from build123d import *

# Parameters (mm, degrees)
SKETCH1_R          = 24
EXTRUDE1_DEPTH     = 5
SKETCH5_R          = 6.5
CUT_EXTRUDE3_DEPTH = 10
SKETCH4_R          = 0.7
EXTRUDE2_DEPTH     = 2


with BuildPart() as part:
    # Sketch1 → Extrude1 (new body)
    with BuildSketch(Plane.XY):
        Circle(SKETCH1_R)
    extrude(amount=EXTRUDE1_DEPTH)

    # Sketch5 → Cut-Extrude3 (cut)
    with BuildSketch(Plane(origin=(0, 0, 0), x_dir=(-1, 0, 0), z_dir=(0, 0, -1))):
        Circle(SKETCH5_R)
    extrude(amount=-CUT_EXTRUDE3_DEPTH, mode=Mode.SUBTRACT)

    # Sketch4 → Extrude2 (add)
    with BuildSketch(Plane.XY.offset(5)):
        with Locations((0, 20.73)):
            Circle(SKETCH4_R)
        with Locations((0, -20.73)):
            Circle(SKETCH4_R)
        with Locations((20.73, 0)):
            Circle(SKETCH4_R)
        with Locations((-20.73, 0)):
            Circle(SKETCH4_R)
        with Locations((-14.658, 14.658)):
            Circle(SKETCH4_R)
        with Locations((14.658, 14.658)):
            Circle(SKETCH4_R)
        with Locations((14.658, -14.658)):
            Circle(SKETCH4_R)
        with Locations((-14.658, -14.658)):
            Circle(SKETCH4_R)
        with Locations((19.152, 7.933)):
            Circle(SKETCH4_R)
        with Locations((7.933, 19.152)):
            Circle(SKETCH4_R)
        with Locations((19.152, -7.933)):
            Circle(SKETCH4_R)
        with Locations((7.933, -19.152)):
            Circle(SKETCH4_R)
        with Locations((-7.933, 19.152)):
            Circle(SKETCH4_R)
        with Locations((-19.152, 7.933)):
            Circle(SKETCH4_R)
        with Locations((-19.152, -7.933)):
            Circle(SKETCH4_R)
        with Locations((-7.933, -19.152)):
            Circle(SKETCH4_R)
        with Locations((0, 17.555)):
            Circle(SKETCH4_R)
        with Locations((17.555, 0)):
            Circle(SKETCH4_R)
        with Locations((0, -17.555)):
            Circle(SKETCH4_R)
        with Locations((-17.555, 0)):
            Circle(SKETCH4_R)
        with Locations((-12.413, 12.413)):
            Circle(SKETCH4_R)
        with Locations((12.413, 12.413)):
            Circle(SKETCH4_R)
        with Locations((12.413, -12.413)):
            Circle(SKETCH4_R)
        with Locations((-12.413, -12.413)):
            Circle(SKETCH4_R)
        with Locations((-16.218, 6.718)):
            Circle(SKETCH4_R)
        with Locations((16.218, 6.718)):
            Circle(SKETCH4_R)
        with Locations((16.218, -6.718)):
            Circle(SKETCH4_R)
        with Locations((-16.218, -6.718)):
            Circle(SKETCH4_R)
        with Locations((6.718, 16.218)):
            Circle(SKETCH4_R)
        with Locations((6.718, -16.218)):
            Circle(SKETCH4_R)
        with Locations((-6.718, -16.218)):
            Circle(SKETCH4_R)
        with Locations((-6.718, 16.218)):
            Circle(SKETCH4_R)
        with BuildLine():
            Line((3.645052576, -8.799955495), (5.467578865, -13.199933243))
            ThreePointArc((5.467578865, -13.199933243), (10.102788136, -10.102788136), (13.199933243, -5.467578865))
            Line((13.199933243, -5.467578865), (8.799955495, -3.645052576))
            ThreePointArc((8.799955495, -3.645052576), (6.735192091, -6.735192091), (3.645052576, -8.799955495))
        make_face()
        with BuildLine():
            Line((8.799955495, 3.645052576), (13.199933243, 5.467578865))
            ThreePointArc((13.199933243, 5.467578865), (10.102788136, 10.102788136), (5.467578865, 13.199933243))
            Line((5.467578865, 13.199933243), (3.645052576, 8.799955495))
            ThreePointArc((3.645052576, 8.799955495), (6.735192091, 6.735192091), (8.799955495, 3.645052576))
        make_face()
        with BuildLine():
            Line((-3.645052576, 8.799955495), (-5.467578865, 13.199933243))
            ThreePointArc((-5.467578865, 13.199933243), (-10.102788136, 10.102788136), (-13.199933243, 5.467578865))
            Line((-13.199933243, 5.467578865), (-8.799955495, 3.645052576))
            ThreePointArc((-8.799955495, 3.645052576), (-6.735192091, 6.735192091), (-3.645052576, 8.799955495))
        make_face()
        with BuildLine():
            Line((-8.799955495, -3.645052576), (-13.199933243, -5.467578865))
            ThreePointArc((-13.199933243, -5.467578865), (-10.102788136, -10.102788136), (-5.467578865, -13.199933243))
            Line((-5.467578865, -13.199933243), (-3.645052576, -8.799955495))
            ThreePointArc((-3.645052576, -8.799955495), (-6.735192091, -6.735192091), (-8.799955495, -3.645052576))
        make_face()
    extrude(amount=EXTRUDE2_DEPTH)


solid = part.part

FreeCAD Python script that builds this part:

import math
import FreeCAD as App
import Part
import Sketcher
Q = App.Units.Quantity

doc = App.newDocument("Part")
body = doc.addObject("PartDesign::Body", "Body")

# Sketch on XY plane
sketch1 = body.newObject("Sketcher::SketchObject", "Sketch")
sketch1.AttachmentSupport = (doc.getObject("XY_Plane"), [""])
sketch1.MapMode = "FlatFace"
sketch1.addGeometry(Part.Circle(App.Vector(0, 0, 0), App.Vector(0, 0, 1), 24), False)
sketch1.addConstraint([
    Sketcher.Constraint("Coincident", 0, 3, -1, 1),
    Sketcher.Constraint("Diameter", 0, Q("48 mm")),
])
pad1 = body.newObject("PartDesign::Pad", "Pad")
pad1.Profile = sketch1
pad1.Length = 5

# Sketch on XY plane
sketch2 = body.newObject("Sketcher::SketchObject", "Sketch001")
sketch2.AttachmentSupport = (doc.getObject("XY_Plane"), [""])
sketch2.MapMode = "FlatFace"
sketch2.addGeometry(Part.Circle(App.Vector(0, 0, 0), App.Vector(0, 0, 1), 6), False)
sketch2.addConstraint([
    Sketcher.Constraint("Coincident", 0, 3, -1, 1),
    Sketcher.Constraint("Diameter", 0, Q("13 mm")),
])
pocket1 = body.newObject("PartDesign::Pocket", "Pocket")
pocket1.Profile = sketch2
pocket1.Length = 10
pocket1.Reversed = True

# Sketch on XY plane
sketch3 = body.newObject("Sketcher::SketchObject", "Sketch002")
sketch3.AttachmentSupport = (doc.getObject("XY_Plane"), [""])
sketch3.MapMode = "FlatFace"
sketch3.AttachmentOffset = App.Placement(App.Vector(0, 0, 5), App.Rotation())
sketch3.addGeometry([
    Part.Circle(App.Vector(0, 20.7, 0), App.Vector(0, 0, 1), 0.7),  # 0
    Part.Circle(App.Vector(0, -20.7, 0), App.Vector(0, 0, 1), 0.7),  # 1
    Part.Circle(App.Vector(20.7, 0, 0), App.Vector(0, 0, 1), 0.7),  # 2
    Part.Circle(App.Vector(-20.7, 0, 0), App.Vector(0, 0, 1), 0.7),  # 3
    Part.Circle(App.Vector(-14.7, 14.7, 0), App.Vector(0, 0, 1), 0.7),  # 4
    Part.Circle(App.Vector(14.7, 14.7, 0), App.Vector(0, 0, 1), 0.7),  # 5
    Part.Circle(App.Vector(14.7, -14.7, 0), App.Vector(0, 0, 1), 0.7),  # 6
    Part.Circle(App.Vector(-14.7, -14.7, 0), App.Vector(0, 0, 1), 0.7),  # 7
    Part.Circle(App.Vector(19.2, 7.9, 0), App.Vector(0, 0, 1), 0.7),  # 8
    Part.Circle(App.Vector(7.9, 19.2, 0), App.Vector(0, 0, 1), 0.7),  # 9
    Part.Circle(App.Vector(19.2, -7.9, 0), App.Vector(0, 0, 1), 0.7),  # 10
    Part.Circle(App.Vector(7.9, -19.2, 0), App.Vector(0, 0, 1), 0.7),  # 11
    Part.Circle(App.Vector(-7.9, 19.2, 0), App.Vector(0, 0, 1), 0.7),  # 12
    Part.Circle(App.Vector(-19.2, 7.9, 0), App.Vector(0, 0, 1), 0.7),  # 13
    Part.Circle(App.Vector(-19.2, -7.9, 0), App.Vector(0, 0, 1), 0.7),  # 14
    Part.Circle(App.Vector(-7.9, -19.2, 0), App.Vector(0, 0, 1), 0.7),  # 15
    Part.Circle(App.Vector(0, 17.6, 0), App.Vector(0, 0, 1), 0.7),  # 16
    Part.Circle(App.Vector(17.6, 0, 0), App.Vector(0, 0, 1), 0.7),  # 17
    Part.Circle(App.Vector(0, -17.6, 0), App.Vector(0, 0, 1), 0.7),  # 18
    Part.Circle(App.Vector(-17.6, 0, 0), App.Vector(0, 0, 1), 0.7),  # 19
    Part.Circle(App.Vector(-12.4, 12.4, 0), App.Vector(0, 0, 1), 0.7),  # 20
    Part.Circle(App.Vector(12.4, 12.4, 0), App.Vector(0, 0, 1), 0.7),  # 21
    Part.Circle(App.Vector(12.4, -12.4, 0), App.Vector(0, 0, 1), 0.7),  # 22
    Part.Circle(App.Vector(-12.4, -12.4, 0), App.Vector(0, 0, 1), 0.7),  # 23
    Part.Circle(App.Vector(-16.2, 6.7, 0), App.Vector(0, 0, 1), 0.7),  # 24
    Part.Circle(App.Vector(16.2, 6.7, 0), App.Vector(0, 0, 1), 0.7),  # 25
    Part.Circle(App.Vector(16.2, -6.7, 0), App.Vector(0, 0, 1), 0.7),  # 26
    Part.Circle(App.Vector(-16.2, -6.7, 0), App.Vector(0, 0, 1), 0.7),  # 27
    Part.Circle(App.Vector(6.7, 16.2, 0), App.Vector(0, 0, 1), 0.7),  # 28
    Part.Circle(App.Vector(6.7, -16.2, 0), App.Vector(0, 0, 1), 0.7),  # 29
    Part.Circle(App.Vector(-6.7, -16.2, 0), App.Vector(0, 0, 1), 0.7),  # 30
    Part.Circle(App.Vector(-6.7, 16.2, 0), App.Vector(0, 0, 1), 0.7),  # 31
    Part.LineSegment(App.Vector(3.6, -8.8, 0), App.Vector(5.5, -13.2, 0)),  # 32
    Part.ArcOfCircle(Part.Circle(App.Vector(0, 0, 0), App.Vector(0, 0, 1), 14.3), math.radians(-68), math.radians(-22)),  # 33
    Part.LineSegment(App.Vector(13.2, -5.5, 0), App.Vector(8.8, -3.6, 0)),  # 34
    Part.ArcOfCircle(Part.Circle(App.Vector(0, 0, 0), App.Vector(0, 0, 1), 9.5), math.radians(-68), math.radians(-22)),  # 35
    Part.LineSegment(App.Vector(8.8, 3.6, 0), App.Vector(13.2, 5.5, 0)),  # 36
    Part.ArcOfCircle(Part.Circle(App.Vector(0, 0, 0), App.Vector(0, 0, 1), 14.3), math.radians(22), math.radians(68)),  # 37
    Part.LineSegment(App.Vector(5.5, 13.2, 0), App.Vector(3.6, 8.8, 0)),  # 38
    Part.ArcOfCircle(Part.Circle(App.Vector(0, 0, 0), App.Vector(0, 0, 1), 9.5), math.radians(22), math.radians(68)),  # 39
    Part.LineSegment(App.Vector(-3.6, 8.8, 0), App.Vector(-5.5, 13.2, 0)),  # 40
    Part.ArcOfCircle(Part.Circle(App.Vector(0, 0, 0), App.Vector(0, 0, 1), 14.3), math.radians(112), math.radians(158)),  # 41
    Part.LineSegment(App.Vector(-13.2, 5.5, 0), App.Vector(-8.8, 3.6, 0)),  # 42
    Part.ArcOfCircle(Part.Circle(App.Vector(0, 0, 0), App.Vector(0, 0, 1), 9.5), math.radians(112), math.radians(158)),  # 43
    Part.LineSegment(App.Vector(-8.8, -3.6, 0), App.Vector(-13.2, -5.5, 0)),  # 44
    Part.ArcOfCircle(Part.Circle(App.Vector(0, 0, 0), App.Vector(0, 0, 1), 14.3), math.radians(-158), math.radians(-112)),  # 45
    Part.LineSegment(App.Vector(-5.5, -13.2, 0), App.Vector(-3.6, -8.8, 0)),  # 46
    Part.ArcOfCircle(Part.Circle(App.Vector(0, 0, 0), App.Vector(0, 0, 1), 9.5), math.radians(-158), math.radians(-112)),  # 47
], False)
sketch3.addConstraint([
    Sketcher.Constraint("Coincident", 32, 2, 33, 1),
    Sketcher.Constraint("Coincident", 33, 2, 34, 1),
    Sketcher.Constraint("Coincident", 34, 2, 35, 2),
    Sketcher.Constraint("Coincident", 35, 1, 32, 1),
    Sketcher.Constraint("Coincident", 36, 2, 37, 1),
    Sketcher.Constraint("Coincident", 37, 2, 38, 1),
    Sketcher.Constraint("Coincident", 38, 2, 39, 2),
    Sketcher.Constraint("Coincident", 39, 1, 36, 1),
    Sketcher.Constraint("Coincident", 40, 2, 41, 1),
    Sketcher.Constraint("Coincident", 41, 2, 42, 1),
    Sketcher.Constraint("Coincident", 42, 2, 43, 2),
    Sketcher.Constraint("Coincident", 43, 1, 40, 1),
    Sketcher.Constraint("Coincident", 44, 2, 45, 1),
    Sketcher.Constraint("Coincident", 45, 2, 46, 1),
    Sketcher.Constraint("Coincident", 46, 2, 47, 2),
    Sketcher.Constraint("Coincident", 47, 1, 44, 1),
    Sketcher.Constraint("Coincident", 33, 3, -1, 1),
    Sketcher.Constraint("Coincident", 35, 3, -1, 1),
    Sketcher.Constraint("Coincident", 37, 3, -1, 1),
    Sketcher.Constraint("Coincident", 39, 3, -1, 1),
    Sketcher.Constraint("Coincident", 41, 3, -1, 1),
    Sketcher.Constraint("Coincident", 43, 3, -1, 1),
    Sketcher.Constraint("Coincident", 45, 3, -1, 1),
    Sketcher.Constraint("Coincident", 47, 3, -1, 1),
    Sketcher.Constraint("Equal", 0, 1),
    Sketcher.Constraint("Equal", 1, 2),
    Sketcher.Constraint("Equal", 2, 3),
    Sketcher.Constraint("Equal", 3, 4),
    Sketcher.Constraint("Equal", 4, 5),
    Sketcher.Constraint("Equal", 5, 6),
    Sketcher.Constraint("Equal", 6, 7),
    Sketcher.Constraint("Equal", 7, 8),
    Sketcher.Constraint("Equal", 8, 9),
    Sketcher.Constraint("Equal", 9, 10),
    Sketcher.Constraint("Equal", 10, 11),
    Sketcher.Constraint("Equal", 11, 12),
    Sketcher.Constraint("Equal", 12, 13),
    Sketcher.Constraint("Equal", 13, 14),
    Sketcher.Constraint("Equal", 14, 15),
    Sketcher.Constraint("Equal", 15, 16),
    Sketcher.Constraint("Equal", 16, 17),
    Sketcher.Constraint("Equal", 17, 18),
    Sketcher.Constraint("Equal", 18, 19),
    Sketcher.Constraint("Equal", 19, 20),
    Sketcher.Constraint("Equal", 20, 21),
    Sketcher.Constraint("Equal", 21, 22),
    Sketcher.Constraint("Equal", 22, 23),
    Sketcher.Constraint("Equal", 23, 24),
    Sketcher.Constraint("Equal", 24, 25),
    Sketcher.Constraint("Equal", 25, 26),
    Sketcher.Constraint("Equal", 26, 27),
    Sketcher.Constraint("Equal", 27, 28),
    Sketcher.Constraint("Equal", 28, 29),
    Sketcher.Constraint("Equal", 29, 30),
    Sketcher.Constraint("Equal", 30, 31),
    Sketcher.Constraint("Equal", 33, 37),
    Sketcher.Constraint("Equal", 35, 39),
    Sketcher.Constraint("Equal", 37, 41),
    Sketcher.Constraint("Equal", 39, 43),
    Sketcher.Constraint("Equal", 41, 45),
    Sketcher.Constraint("Equal", 43, 47),
    Sketcher.Constraint("Symmetric", 0, 3, 1, 3, -1, 1),
    Sketcher.Constraint("Symmetric", 2, 3, 3, 3, -1, 1),
    Sketcher.Constraint("Symmetric", 4, 3, 6, 3, -1, 1),
    Sketcher.Constraint("Symmetric", 5, 3, 7, 3, -1, 1),
    Sketcher.Constraint("Symmetric", 11, 3, 12, 3, -1, 1),
    Sketcher.Constraint("Symmetric", 10, 3, 13, 3, -1, 1),
    Sketcher.Constraint("Symmetric", 8, 3, 14, 3, -1, 1),
    Sketcher.Constraint("Symmetric", 9, 3, 15, 3, -1, 1),
    Sketcher.Constraint("Symmetric", 16, 3, 18, 3, -1, 1),
    Sketcher.Constraint("Symmetric", 17, 3, 19, 3, -1, 1),
    Sketcher.Constraint("Symmetric", 20, 3, 22, 3, -1, 1),
    Sketcher.Constraint("Symmetric", 21, 3, 23, 3, -1, 1),
    Sketcher.Constraint("Symmetric", 24, 3, 26, 3, -1, 1),
    Sketcher.Constraint("Symmetric", 25, 3, 27, 3, -1, 1),
    Sketcher.Constraint("Symmetric", 28, 3, 30, 3, -1, 1),
    Sketcher.Constraint("Symmetric", 29, 3, 31, 3, -1, 1),
    Sketcher.Constraint("Symmetric", 4, 3, 5, 3, -2),
    Sketcher.Constraint("Symmetric", 9, 3, 12, 3, -2),
    Sketcher.Constraint("Symmetric", 8, 3, 13, 3, -2),
    Sketcher.Constraint("Symmetric", 20, 3, 21, 3, -2),
    Sketcher.Constraint("Symmetric", 24, 3, 25, 3, -2),
    Sketcher.Constraint("Symmetric", 29, 3, 30, 3, -2),
    Sketcher.Constraint("PointOnObject", 0, 3, -2),
    Sketcher.Constraint("PointOnObject", 2, 3, -1),
    Sketcher.Constraint("PointOnObject", 16, 3, -2),
    Sketcher.Constraint("PointOnObject", 17, 3, -1),
    Sketcher.Constraint("Perpendicular", 32, 36),
    Sketcher.Constraint("Perpendicular", 34, 38),
    Sketcher.Constraint("Perpendicular", 36, 40),
    Sketcher.Constraint("Perpendicular", 38, 42),
    Sketcher.Constraint("Perpendicular", 40, 44),
    Sketcher.Constraint("Perpendicular", 42, 46),
    Sketcher.Constraint("Horizontal", 37, 2, 40, 2),
    Sketcher.Constraint("Horizontal", 36, 2, 41, 2),
    Sketcher.Constraint("Horizontal", 39, 1, 42, 2),
    Sketcher.Constraint("Horizontal", 33, 2, 44, 2),
    Sketcher.Constraint("Horizontal", 32, 2, 45, 2),
    Sketcher.Constraint("Vertical", 33, 2, 36, 2),
    Sketcher.Constraint("Vertical", 32, 2, 37, 2),
    Sketcher.Constraint("Diameter", 0, Q("1.4 mm")),
    Sketcher.Constraint("Radius", 35, Q("9.525 mm")),
    Sketcher.Constraint("Radius", 33, Q("14.2875 mm")),
    Sketcher.Constraint("DistanceY", -1, 1, 0, 3, Q("20.73 mm")),
    Sketcher.Constraint("DistanceX", -1, 1, 2, 3, Q("20.73 mm")),
    Sketcher.Constraint("DistanceX", 4, 3, 8, 3, Q("33.81 mm")),
    Sketcher.Constraint("DistanceX", 20, 3, 12, 3, Q("4.48 mm")),
    Sketcher.Constraint("DistanceY", 13, 3, 20, 3, Q("4.48 mm")),
    Sketcher.Constraint("DistanceX", 24, 3, 4, 3, Q("1.56 mm")),
    Sketcher.Constraint("DistanceY", 24, 3, 4, 3, Q("7.94 mm")),
    Sketcher.Constraint("DistanceX", 28, 3, 5, 3, Q("7.94 mm")),
    Sketcher.Constraint("DistanceY", 5, 3, 28, 3, Q("1.56 mm")),
    Sketcher.Constraint("DistanceX", 4, 3, -1, 1, Q("14.658 mm")),
    Sketcher.Constraint("DistanceY", -1, 1, 4, 3, Q("14.658 mm")),
    Sketcher.Constraint("DistanceY", -1, 1, 8, 3, Q("7.933 mm")),
    Sketcher.Constraint("DistanceX", -1, 1, 9, 3, Q("7.933 mm")),
    Sketcher.Constraint("DistanceY", -1, 1, 9, 3, Q("19.152 mm")),
    Sketcher.Constraint("DistanceY", -1, 1, 16, 3, Q("17.555 mm")),
    Sketcher.Constraint("DistanceX", -1, 1, 17, 3, Q("17.555 mm")),
    Sketcher.Constraint("DistanceX", -1, 1, 32, 2, Q("5.467579 mm")),
    Sketcher.Constraint("DistanceY", 33, 2, -1, 1, Q("5.467579 mm")),
    Sketcher.Constraint("DistanceX", -1, 1, 34, 2, Q("8.799955 mm")),
])
pad2 = body.newObject("PartDesign::Pad", "Pad001")
pad2.Profile = sketch3
pad2.Length = 2

doc.recompute()
